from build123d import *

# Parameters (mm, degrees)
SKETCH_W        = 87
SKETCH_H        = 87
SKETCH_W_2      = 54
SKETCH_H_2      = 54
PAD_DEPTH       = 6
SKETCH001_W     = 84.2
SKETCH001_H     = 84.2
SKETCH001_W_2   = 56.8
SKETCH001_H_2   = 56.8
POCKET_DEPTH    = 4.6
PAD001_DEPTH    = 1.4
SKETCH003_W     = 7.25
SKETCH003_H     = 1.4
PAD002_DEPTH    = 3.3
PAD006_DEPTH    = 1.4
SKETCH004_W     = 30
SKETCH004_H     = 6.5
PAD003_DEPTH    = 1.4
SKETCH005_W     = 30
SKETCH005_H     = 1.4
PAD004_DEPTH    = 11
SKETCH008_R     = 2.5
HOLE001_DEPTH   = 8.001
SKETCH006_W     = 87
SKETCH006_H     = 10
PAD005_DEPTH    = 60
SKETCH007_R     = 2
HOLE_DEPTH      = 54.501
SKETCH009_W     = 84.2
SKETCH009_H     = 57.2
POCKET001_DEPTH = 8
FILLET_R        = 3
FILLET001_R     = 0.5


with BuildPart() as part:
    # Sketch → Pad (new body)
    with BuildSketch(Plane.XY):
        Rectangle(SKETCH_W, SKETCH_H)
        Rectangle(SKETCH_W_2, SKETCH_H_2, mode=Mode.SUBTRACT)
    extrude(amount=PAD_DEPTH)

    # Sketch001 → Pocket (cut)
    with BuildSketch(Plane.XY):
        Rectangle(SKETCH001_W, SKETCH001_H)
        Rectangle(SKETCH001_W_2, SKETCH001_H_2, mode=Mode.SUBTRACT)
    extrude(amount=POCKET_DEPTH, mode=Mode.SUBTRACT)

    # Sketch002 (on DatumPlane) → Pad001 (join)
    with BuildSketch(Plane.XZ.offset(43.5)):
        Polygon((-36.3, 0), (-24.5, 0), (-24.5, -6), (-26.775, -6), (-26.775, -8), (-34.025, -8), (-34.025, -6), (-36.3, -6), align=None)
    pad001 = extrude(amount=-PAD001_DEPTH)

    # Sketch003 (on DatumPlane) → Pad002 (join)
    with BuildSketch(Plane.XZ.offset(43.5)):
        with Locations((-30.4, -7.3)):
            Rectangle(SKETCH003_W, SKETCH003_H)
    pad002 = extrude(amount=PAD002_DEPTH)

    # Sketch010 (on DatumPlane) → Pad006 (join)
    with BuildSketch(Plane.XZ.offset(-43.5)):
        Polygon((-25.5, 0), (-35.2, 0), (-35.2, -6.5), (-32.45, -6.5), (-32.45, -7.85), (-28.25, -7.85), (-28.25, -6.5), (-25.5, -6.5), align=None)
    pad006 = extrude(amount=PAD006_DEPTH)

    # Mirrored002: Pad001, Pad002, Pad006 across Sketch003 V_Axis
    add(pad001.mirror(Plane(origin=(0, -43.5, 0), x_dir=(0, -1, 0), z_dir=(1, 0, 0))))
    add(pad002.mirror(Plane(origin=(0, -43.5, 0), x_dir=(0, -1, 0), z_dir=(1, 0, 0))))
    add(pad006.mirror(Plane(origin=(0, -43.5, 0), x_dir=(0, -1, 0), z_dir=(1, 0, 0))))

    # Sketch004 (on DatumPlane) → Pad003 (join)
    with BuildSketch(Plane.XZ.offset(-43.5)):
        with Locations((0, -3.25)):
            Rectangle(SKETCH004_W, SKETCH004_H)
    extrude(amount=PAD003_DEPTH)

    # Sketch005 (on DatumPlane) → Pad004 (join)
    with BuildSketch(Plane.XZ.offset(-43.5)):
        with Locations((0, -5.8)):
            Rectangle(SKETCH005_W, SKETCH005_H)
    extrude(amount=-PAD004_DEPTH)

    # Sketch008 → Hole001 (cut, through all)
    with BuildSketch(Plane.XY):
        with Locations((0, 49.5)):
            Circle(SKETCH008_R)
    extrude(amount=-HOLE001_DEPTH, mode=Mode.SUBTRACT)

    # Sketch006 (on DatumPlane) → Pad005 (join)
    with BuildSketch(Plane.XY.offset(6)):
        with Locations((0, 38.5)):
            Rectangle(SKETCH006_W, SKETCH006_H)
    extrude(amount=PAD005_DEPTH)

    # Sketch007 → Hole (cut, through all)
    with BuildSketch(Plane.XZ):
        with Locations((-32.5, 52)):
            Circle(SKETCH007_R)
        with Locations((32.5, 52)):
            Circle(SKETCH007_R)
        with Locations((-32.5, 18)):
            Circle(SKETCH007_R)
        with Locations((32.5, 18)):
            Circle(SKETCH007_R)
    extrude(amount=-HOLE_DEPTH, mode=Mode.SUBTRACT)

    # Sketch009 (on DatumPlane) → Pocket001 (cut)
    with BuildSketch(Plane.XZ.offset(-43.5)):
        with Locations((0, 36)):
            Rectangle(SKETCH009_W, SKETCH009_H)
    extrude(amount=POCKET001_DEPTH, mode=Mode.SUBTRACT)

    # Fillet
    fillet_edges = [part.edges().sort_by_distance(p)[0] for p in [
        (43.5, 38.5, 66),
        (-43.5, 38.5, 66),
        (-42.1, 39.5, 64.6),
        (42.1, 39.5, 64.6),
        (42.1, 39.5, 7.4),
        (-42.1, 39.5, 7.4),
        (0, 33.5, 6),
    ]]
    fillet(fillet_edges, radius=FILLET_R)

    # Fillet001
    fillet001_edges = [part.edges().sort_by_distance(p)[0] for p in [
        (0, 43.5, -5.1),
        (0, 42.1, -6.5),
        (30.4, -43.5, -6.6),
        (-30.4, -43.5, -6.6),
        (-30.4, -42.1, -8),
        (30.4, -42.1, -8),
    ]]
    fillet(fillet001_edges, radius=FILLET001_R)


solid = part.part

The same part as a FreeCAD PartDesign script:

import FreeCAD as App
import Part
import Sketcher
from FreeCAD import Vector
Q = App.Units.Quantity


def edges_at(feature, points):
    """Names of the edges that pass closest to the given points."""
    edges = feature.Shape.Edges
    near = lambda p: min(range(len(edges)), key=lambda i: edges[i].distToShape(Part.Vertex(*p))[0])
    return sorted({f"Edge{near(p) + 1}" for p in points})


def add_polygon(sketch, points):
    """Adds a closed chain of lines whose ends are joined by coincident constraints."""
    first, n = sketch.GeometryCount, len(points)
    for a, b in zip(points, points[1:] + points[:1]):
        sketch.addGeometry(Part.LineSegment(App.Vector(*a, 0), App.Vector(*b, 0)), False)
    for i in range(n):
        sketch.addConstraint(Sketcher.Constraint("Coincident", first + i, 2, first + (i + 1) % n, 1))

doc = App.newDocument("Part")
body = doc.addObject("PartDesign::Body", "Body")

# Sketch on XY plane
sketch1 = doc.addObject("Sketcher::SketchObject", "Sketch")
body.addObject(sketch1)
sketch1.AttachmentSupport = (doc.XY_Plane, [""])
sketch1.MapMode = "FlatFace"
add_polygon(sketch1, [(-43.5, 43.5), (-43.5, -43.5), (43.5, -43.5), (43.5, 43.5)])  # lines 0-3
add_polygon(sketch1, [(27, -27), (-27, -27), (-27, 27), (27, 27)])  # lines 4-7
sketch1.addConstraint(Sketcher.Constraint("Vertical", 0))
sketch1.addConstraint(Sketcher.Constraint("Horizontal", 1))
sketch1.addConstraint(Sketcher.Constraint("Vertical", 2))
sketch1.addConstraint(Sketcher.Constraint("Horizontal", 3))
sketch1.addConstraint(Sketcher.Constraint("Horizontal", 4))
sketch1.addConstraint(Sketcher.Constraint("Vertical", 5))
sketch1.addConstraint(Sketcher.Constraint("Horizontal", 6))
sketch1.addConstraint(Sketcher.Constraint("Vertical", 7))
sketch1.addConstraint(Sketcher.Constraint("Symmetric", 0, 2, 2, 2, -1, 1))
sketch1.addConstraint(Sketcher.Constraint("Symmetric", 4, 2, 6, 2, -1, 1))
sketch1.addConstraint(Sketcher.Constraint("Equal", 3, 0))
sketch1.addConstraint(Sketcher.Constraint("Equal", 6, 5))
sketch1.addConstraint(Sketcher.Constraint("DistanceX", 1, 1, 1, 2, Q("87 mm")))
sketch1.addConstraint(Sketcher.Constraint("DistanceX", 4, 2, 4, 1, Q("54 mm")))
pad1 = doc.addObject("PartDesign::Pad", "Pad")
body.addObject(pad1)
pad1.Profile = sketch1
pad1.Length = 6

# Sketch on XY plane
sketch2 = doc.addObject("Sketcher::SketchObject", "Sketch001")
body.addObject(sketch2)
sketch2.AttachmentSupport = (doc.XY_Plane, [""])
sketch2.MapMode = "FlatFace"
add_polygon(sketch2, [(-42.1, 42.1), (-42.1, -42.1), (42.1, -42.1), (42.1, 42.1)])  # lines 0-3
add_polygon(sketch2, [(28.4, -28.4), (-28.4, -28.4), (-28.4, 28.4), (28.4, 28.4)])  # lines 4-7
sketch2.addConstraint(Sketcher.Constraint("Vertical", 0))
sketch2.addConstraint(Sketcher.Constraint("Horizontal", 1))
sketch2.addConstraint(Sketcher.Constraint("Vertical", 2))
sketch2.addConstraint(Sketcher.Constraint("Horizontal", 3))
sketch2.addConstraint(Sketcher.Constraint("Horizontal", 4))
sketch2.addConstraint(Sketcher.Constraint("Vertical", 5))
sketch2.addConstraint(Sketcher.Constraint("Horizontal", 6))
sketch2.addConstraint(Sketcher.Constraint("Vertical", 7))
sketch2.addConstraint(Sketcher.Constraint("Symmetric", 0, 2, 2, 2, -1, 1))
sketch2.addConstraint(Sketcher.Constraint("Symmetric", 4, 2, 6, 2, -1, 1))
sketch2.addConstraint(Sketcher.Constraint("Equal", 3, 0))
sketch2.addConstraint(Sketcher.Constraint("Equal", 6, 5))
sketch2.addConstraint(Sketcher.Constraint("DistanceX", 1, 1, 1, 2, Q("84.2 mm")))
sketch2.addConstraint(Sketcher.Constraint("DistanceX", 4, 2, 4, 1, Q("56.8 mm")))
pocket1 = doc.addObject("PartDesign::Pocket", "Pocket")
body.addObject(pocket1)
pocket1.Profile = sketch2
pocket1.Length = 4.6
pocket1.Reversed = True

# Sketch on XZ plane
sketch3 = doc.addObject("Sketcher::SketchObject", "Sketch002")
body.addObject(sketch3)
sketch3.AttachmentSupport = (doc.XZ_Plane, [""])
sketch3.MapMode = "FlatFace"
sketch3.AttachmentOffset = App.Placement(Vector(0, 0, 43.5), App.Rotation())
add_polygon(sketch3, [(-24.5, 0), (-36.3, 0), (-36.3, -6), (-34.025, -6), (-34.025, -8), (-26.775, -8), (-26.775, -6), (-24.5, -6)])  # lines 0-7
sketch3.addConstraint(Sketcher.Constraint("Horizontal", 0))
sketch3.addConstraint(Sketcher.Constraint("Vertical", 1))
sketch3.addConstraint(Sketcher.Constraint("Horizontal", 2))
sketch3.addConstraint(Sketcher.Constraint("Vertical", 3))
sketch3.addConstraint(Sketcher.Constraint("Horizontal", 4))
sketch3.addConstraint(Sketcher.Constraint("Vertical", 5))
sketch3.addConstraint(Sketcher.Constraint("Horizontal", 6))
sketch3.addConstraint(Sketcher.Constraint("Vertical", 7))
sketch3.addConstraint(Sketcher.Constraint("PointOnObject", 0, 2, -1))
sketch3.addConstraint(Sketcher.Constraint("Horizontal", 2, 2, 5, 2))
sketch3.addConstraint(Sketcher.Constraint("Equal", 2, 6))
sketch3.addConstraint(Sketcher.Constraint("DistanceY", 1, 2, 1, 1, Q("6 mm")))
sketch3.addConstraint(Sketcher.Constraint("DistanceY", 3, 2, 3, 1, Q("2 mm")))
sketch3.addConstraint(Sketcher.Constraint("DistanceX", 0, 2, 0, 1, Q("11.8 mm")))
sketch3.addConstraint(Sketcher.Constraint("DistanceX", 4, 1, 4, 2, Q("7.25 mm")))
sketch3.addConstraint(Sketcher.Constraint("DistanceX", 0, 2, -1, 1, Q("36.3 mm")))
pad2 = doc.addObject("PartDesign::Pad", "Pad001")
body.addObject(pad2)
pad2.Profile = sketch3
pad2.Length = 1.4
pad2.Reversed = True

# Sketch on XZ plane
sketch4 = doc.addObject("Sketcher::SketchObject", "Sketch003")
body.addObject(sketch4)
sketch4.AttachmentSupport = (doc.XZ_Plane, [""])
sketch4.MapMode = "FlatFace"
sketch4.AttachmentOffset = App.Placement(Vector(0, 0, 43.5), App.Rotation())
add_polygon(sketch4, [(-34.025, -6.6), (-34.025, -8), (-26.775, -8), (-26.775, -6.6)])  # lines 0-3
sketch4.addConstraint(Sketcher.Constraint("Vertical", 0))
sketch4.addConstraint(Sketcher.Constraint("Horizontal", 1))
sketch4.addConstraint(Sketcher.Constraint("Vertical", 2))
sketch4.addConstraint(Sketcher.Constraint("Horizontal", 3))
sketch4.addConstraint(Sketcher.Constraint("DistanceY", 0, 2, 0, 1, Q("1.4 mm")))
sketch4.addConstraint(Sketcher.Constraint("DistanceY", 0, 2, -1, 1, Q("8 mm")))
sketch4.addConstraint(Sketcher.Constraint("DistanceX", 1, 1, 1, 2, Q("7.25 mm")))
sketch4.addConstraint(Sketcher.Constraint("DistanceX", 0, 2, -1, 1, Q("34.025 mm")))
pad3 = doc.addObject("PartDesign::Pad", "Pad002")
body.addObject(pad3)
pad3.Profile = sketch4
pad3.Length = 3.3

# Sketch on XZ plane
sketch5 = doc.addObject("Sketcher::SketchObject", "Sketch004")
body.addObject(sketch5)
sketch5.AttachmentSupport = (doc.XZ_Plane, [""])
sketch5.MapMode = "FlatFace"
sketch5.AttachmentOffset = App.Placement(Vector(0, 0, -43.5), App.Rotation())
add_polygon(sketch5, [(-25.5, 0), (-35.2, 0), (-35.2, -6.5), (-32.45, -6.5), (-32.45, -7.85), (-28.25, -7.85), (-28.25, -6.5), (-25.5, -6.5)])  # lines 0-7
sketch5.addConstraint(Sketcher.Constraint("Horizontal", 0))
sketch5.addConstraint(Sketcher.Constraint("Vertical", 1))
sketch5.addConstraint(Sketcher.Constraint("Horizontal", 2))
sketch5.addConstraint(Sketcher.Constraint("Vertical", 3))
sketch5.addConstraint(Sketcher.Constraint("Horizontal", 4))
sketch5.addConstraint(Sketcher.Constraint("Vertical", 5))
sketch5.addConstraint(Sketcher.Constraint("Horizontal", 6))
sketch5.addConstraint(Sketcher.Constraint("Vertical", 7))
sketch5.addConstraint(Sketcher.Constraint("PointOnObject", 0, 2, -1))
sketch5.addConstraint(Sketcher.Constraint("Horizontal", 2, 2, 5, 2))
sketch5.addConstraint(Sketcher.Constraint("Equal", 2, 6))
sketch5.addConstraint(Sketcher.Constraint("DistanceX", 0, 2, 0, 1, Q("9.7 mm")))
sketch5.addConstraint(Sketcher.Constraint("DistanceX", 4, 1, 4, 2, Q("4.2 mm")))
sketch5.addConstraint(Sketcher.Constraint("DistanceY", 1, 2, 1, 1, Q("6.5 mm")))
sketch5.addConstraint(Sketcher.Constraint("DistanceY", 3, 2, 3, 1, Q("1.35 mm")))
sketch5.addConstraint(Sketcher.Constraint("DistanceX", 0, 2, -1, 1, Q("35.2 mm")))
pad4 = doc.addObject("PartDesign::Pad", "Pad003")
body.addObject(pad4)
pad4.Profile = sketch5
pad4.Length = 1.4
doc.recompute()

mirrored = doc.addObject("PartDesign::Mirrored", "Mirrored")
body.addObject(mirrored)
mirrored.Originals = [pad2, pad3, pad4]
mirrored.MirrorPlane = (doc.YZ_Plane, [""])
body.Tip = mirrored

# Sketch on XZ plane
sketch6 = doc.addObject("Sketcher::SketchObject", "Sketch005")
body.addObject(sketch6)
sketch6.AttachmentSupport = (doc.XZ_Plane, [""])
sketch6.MapMode = "FlatFace"
sketch6.AttachmentOffset = App.Placement(Vector(0, 0, -43.5), App.Rotation())
add_polygon(sketch6, [(-15, 0), (-15, -6.5), (15, -6.5), (15, 0)])  # lines 0-3
sketch6.addConstraint(Sketcher.Constraint("Vertical", 0))
sketch6.addConstraint(Sketcher.Constraint("Horizontal", 1))
sketch6.addConstraint(Sketcher.Constraint("Vertical", 2))
sketch6.addConstraint(Sketcher.Constraint("Horizontal", 3))
sketch6.addConstraint(Sketcher.Constraint("Symmetric", 2, 2, 3, 2, -1, 1))
sketch6.addConstraint(Sketcher.Constraint("DistanceX", 1, 1, 1, 2, Q("30 mm")))
sketch6.addConstraint(Sketcher.Constraint("DistanceY", 0, 2, 0, 1, Q("6.5 mm")))
pad5 = doc.addObject("PartDesign::Pad", "Pad004")
body.addObject(pad5)
pad5.Profile = sketch6
pad5.Length = 1.4

# Sketch on XZ plane
sketch7 = doc.addObject("Sketcher::SketchObject", "Sketch006")
body.addObject(sketch7)
sketch7.AttachmentSupport = (doc.XZ_Plane, [""])
sketch7.MapMode = "FlatFace"
sketch7.AttachmentOffset = App.Placement(Vector(0, 0, -43.5), App.Rotation())
add_polygon(sketch7, [(-15, -5.1), (-15, -6.5), (15, -6.5), (15, -5.1)])  # lines 0-3
sketch7.addConstraint(Sketcher.Constraint("Vertical", 0))
sketch7.addConstraint(Sketcher.Constraint("Horizontal", 1))
sketch7.addConstraint(Sketcher.Constraint("Vertical", 2))
sketch7.addConstraint(Sketcher.Constraint("Horizontal", 3))
sketch7.addConstraint(Sketcher.Constraint("DistanceX", 1, 1, 1, 2, Q("30 mm")))
sketch7.addConstraint(Sketcher.Constraint("DistanceY", 0, 2, 0, 1, Q("1.4 mm")))
sketch7.addConstraint(Sketcher.Constraint("DistanceX", 0, 2, -1, 1, Q("15 mm")))
sketch7.addConstraint(Sketcher.Constraint("DistanceY", 0, 2, -1, 1, Q("6.5 mm")))
pad6 = doc.addObject("PartDesign::Pad", "Pad005")
body.addObject(pad6)
pad6.Profile = sketch7
pad6.Length = 11
pad6.Reversed = True

# Sketch on XY plane
sketch8 = doc.addObject("Sketcher::SketchObject", "Sketch007")
body.addObject(sketch8)
sketch8.AttachmentSupport = (doc.XY_Plane, [""])
sketch8.MapMode = "FlatFace"
sketch8.addGeometry(Part.Circle(Vector(0, 49.5, 0), Vector(0, 0, 1), 2.5), False)
sketch8.addConstraint(Sketcher.Constraint("PointOnObject", 0, 3, -2))
sketch8.addConstraint(Sketcher.Constraint("Diameter", 0, Q("5 mm")))
sketch8.addConstraint(Sketcher.Constraint("DistanceY", -1, 1, 0, 3, Q("49.5 mm")))
pocket2 = doc.addObject("PartDesign::Pocket", "Pocket001")
body.addObject(pocket2)
pocket2.Profile = sketch8
pocket2.Type = "ThroughAll"

# Sketch on XY plane
sketch9 = doc.addObject("Sketcher::SketchObject", "Sketch008")
body.addObject(sketch9)
sketch9.AttachmentSupport = (doc.XY_Plane, [""])
sketch9.MapMode = "FlatFace"
sketch9.AttachmentOffset = App.Placement(Vector(0, 0, 6), App.Rotation())
add_polygon(sketch9, [(-43.5, 43.5), (-43.5, 33.5), (43.5, 33.5), (43.5, 43.5)])  # lines 0-3
sketch9.addConstraint(Sketcher.Constraint("Vertical", 0))
sketch9.addConstraint(Sketcher.Constraint("Horizontal", 1))
sketch9.addConstraint(Sketcher.Constraint("Vertical", 2))
sketch9.addConstraint(Sketcher.Constraint("Horizontal", 3))
sketch9.addConstraint(Sketcher.Constraint("DistanceX", 1, 1, 1, 2, Q("87 mm")))
sketch9.addConstraint(Sketcher.Constraint("DistanceY", 0, 2, 0, 1, Q("10 mm")))
sketch9.addConstraint(Sketcher.Constraint("DistanceX", 0, 2, -1, 1, Q("43.5 mm")))
sketch9.addConstraint(Sketcher.Constraint("DistanceY", -1, 1, 0, 2, Q("33.5 mm")))
pad7 = doc.addObject("PartDesign::Pad", "Pad006")
body.addObject(pad7)
pad7.Profile = sketch9
pad7.Length = 60

# Sketch on XZ plane
sketch10 = doc.addObject("Sketcher::SketchObject", "Sketch009")
body.addObject(sketch10)
sketch10.AttachmentSupport = (doc.XZ_Plane, [""])
sketch10.MapMode = "FlatFace"
sketch10.addGeometry(Part.Circle(Vector(-32.5, 52, 0), Vector(0, 0, 1), 2), False)
sketch10.addGeometry(Part.Circle(Vector(32.5, 52, 0), Vector(0, 0, 1), 2), False)
sketch10.addGeometry(Part.Circle(Vector(-32.5, 18, 0), Vector(0, 0, 1), 2), False)
sketch10.addGeometry(Part.Circle(Vector(32.5, 18, 0), Vector(0, 0, 1), 2), False)
sketch10.addConstraint(Sketcher.Constraint("Equal", 0, 1))
sketch10.addConstraint(Sketcher.Constraint("Equal", 1, 2))
sketch10.addConstraint(Sketcher.Constraint("Equal", 2, 3))
sketch10.addConstraint(Sketcher.Constraint("Symmetric", 0, 3, 1, 3, -2))
sketch10.addConstraint(Sketcher.Constraint("Symmetric", 2, 3, 3, 3, -2))
sketch10.addConstraint(Sketcher.Constraint("Vertical", 0, 3, 2, 3))
sketch10.addConstraint(Sketcher.Constraint("Diameter", 0, Q("4 mm")))
sketch10.addConstraint(Sketcher.Constraint("DistanceY", -1, 1, 0, 3, Q("52 mm")))
sketch10.addConstraint(Sketcher.Constraint("DistanceY", -1, 1, 2, 3, Q("18 mm")))
sketch10.addConstraint(Sketcher.Constraint("DistanceX", 0, 3, 1, 3, Q("65 mm")))
pocket3 = doc.addObject("PartDesign::Pocket", "Pocket002")
body.addObject(pocket3)
pocket3.Profile = sketch10
pocket3.Type = "ThroughAll"

# Sketch on XZ plane
sketch11 = doc.addObject("Sketcher::SketchObject", "Sketch010")
body.addObject(sketch11)
sketch11.AttachmentSupport = (doc.XZ_Plane, [""])
sketch11.MapMode = "FlatFace"
sketch11.AttachmentOffset = App.Placement(Vector(0, 0, -43.5), App.Rotation())
add_polygon(sketch11, [(-42.1, 64.6), (-42.1, 7.4), (42.1, 7.4), (42.1, 64.6)])  # lines 0-3
sketch11.addConstraint(Sketcher.Constraint("Vertical", 0))
sketch11.addConstraint(Sketcher.Constraint("Horizontal", 1))
sketch11.addConstraint(Sketcher.Constraint("Vertical", 2))
sketch11.addConstraint(Sketcher.Constraint("Horizontal", 3))
sketch11.addConstraint(Sketcher.Constraint("DistanceX", 1, 1, 1, 2, Q("84.2 mm")))
sketch11.addConstraint(Sketcher.Constraint("DistanceY", 0, 2, 0, 1, Q("57.2 mm")))
sketch11.addConstraint(Sketcher.Constraint("DistanceX", 0, 2, -1, 1, Q("42.1 mm")))
sketch11.addConstraint(Sketcher.Constraint("DistanceY", -1, 1, 0, 2, Q("7.4 mm")))
pocket4 = doc.addObject("PartDesign::Pocket", "Pocket003")
body.addObject(pocket4)
pocket4.Profile = sketch11
pocket4.Length = 8
pocket4.Reversed = True
doc.recompute()

fillet = doc.addObject("PartDesign::Fillet", "Fillet")
body.addObject(fillet)
fillet.Base = (pocket4, edges_at(pocket4, [
    (43.5, 38.5, 66),
    (-43.5, 38.5, 66),
    (-42.1, 39.5, 64.6),
    (42.1, 39.5, 64.6),
    (42.1, 39.5, 7.4),
    (-42.1, 39.5, 7.4),
    (0, 33.5, 6),
]))
fillet.Radius = 3
doc.recompute()

fillet2 = doc.addObject("PartDesign::Fillet", "Fillet001")
body.addObject(fillet2)
fillet2.Base = (fillet, edges_at(fillet, [
    (0, 43.5, -5.1),
    (0, 42.1, -6.5),
    (30.4, -43.5, -6.6),
    (-30.4, -43.5, -6.6),
    (-30.4, -42.1, -8),
    (30.4, -42.1, -8),
]))
fillet2.Radius = 0.5

doc.recompute()
